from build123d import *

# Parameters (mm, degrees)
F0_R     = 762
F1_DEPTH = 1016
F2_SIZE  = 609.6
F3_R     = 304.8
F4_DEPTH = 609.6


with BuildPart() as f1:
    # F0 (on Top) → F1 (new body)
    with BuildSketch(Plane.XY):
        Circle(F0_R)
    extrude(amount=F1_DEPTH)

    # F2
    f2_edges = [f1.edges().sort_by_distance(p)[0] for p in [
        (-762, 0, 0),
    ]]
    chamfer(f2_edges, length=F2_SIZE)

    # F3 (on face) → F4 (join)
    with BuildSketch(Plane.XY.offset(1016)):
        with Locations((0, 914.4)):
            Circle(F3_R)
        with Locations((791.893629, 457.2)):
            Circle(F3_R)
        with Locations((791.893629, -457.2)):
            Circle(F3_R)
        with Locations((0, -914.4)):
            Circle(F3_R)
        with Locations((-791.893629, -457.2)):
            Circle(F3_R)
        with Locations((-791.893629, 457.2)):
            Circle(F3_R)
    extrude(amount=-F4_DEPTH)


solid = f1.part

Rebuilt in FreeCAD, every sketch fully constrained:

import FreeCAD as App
import Part
import Sketcher
from FreeCAD import Vector
Q = App.Units.Quantity


def edges_at(feature, points):
    """Names of the edges that pass closest to the given points."""
    edges = feature.Shape.Edges
    near = lambda p: min(range(len(edges)), key=lambda i: edges[i].distToShape(Part.Vertex(*p))[0])
    return sorted({f"Edge{near(p) + 1}" for p in points})

doc = App.newDocument("Part")
body = doc.addObject("PartDesign::Body", "Body")

sketch1 = body.newObject("Sketcher::SketchObject", "Sketch")
sketch1.AttachmentSupport = (doc.getObject("XY_Plane"), [""])
sketch1.MapMode = "FlatFace"
sketch1.addGeometry(Part.Circle(Vector(0, 0, 0), Vector(0, 0, 1), 762), False)
sketch1.addConstraint([
    Sketcher.Constraint("Coincident", 0, 3, -1, 1),
    Sketcher.Constraint("Diameter", 0, Q("60 in")),
])
pad1 = body.newObject("PartDesign::Pad", "Pad")
pad1.Profile = sketch1
pad1.Length = Q("40 in")
doc.recompute()

chamfer = body.newObject("PartDesign::Chamfer", "Chamfer")
chamfer.Base = (pad1, edges_at(pad1, [(-762, 0, 0)]))
chamfer.Size = Q("24 in")

sketch2 = body.newObject("Sketcher::SketchObject", "Sketch001")
sketch2.AttachmentSupport = (doc.getObject("XY_Plane"), [""])
sketch2.MapMode = "FlatFace"
sketch2.AttachmentOffset = App.Placement(Vector(0, 0, 40 * 25.4), App.Rotation())
sketch2.addGeometry([
    Part.Circle(Vector(0, 914, 0), Vector(0, 0, 1), 305),
    Part.Circle(Vector(792, 457, 0), Vector(0, 0, 1), 305),
    Part.Circle(Vector(792, -457, 0), Vector(0, 0, 1), 305),
    Part.Circle(Vector(0, -914, 0), Vector(0, 0, 1), 305),
    Part.Circle(Vector(-792, -457, 0), Vector(0, 0, 1), 305),
    Part.Circle(Vector(-792, 457, 0), Vector(0, 0, 1), 305),
], False)
sketch2.addConstraint([
    Sketcher.Constraint("Equal", 0, 1),
    Sketcher.Constraint("Equal", 1, 2),
    Sketcher.Constraint("Equal", 2, 3),
    Sketcher.Constraint("Equal", 3, 4),
    Sketcher.Constraint("Equal", 4, 5),
    Sketcher.Constraint("Symmetric", 0, 3, 3, 3, -1, 1),
    Sketcher.Constraint("Symmetric", 1, 3, 4, 3, -1, 1),
    Sketcher.Constraint("Symmetric", 2, 3, 5, 3, -1, 1),
    Sketcher.Constraint("Symmetric", 2, 3, 4, 3, -2),
    Sketcher.Constraint("PointOnObject", 0, 3, -2),
    Sketcher.Constraint("Diameter", 0, Q("24 in")),
    Sketcher.Constraint("DistanceY", -1, 1, 0, 3, Q("36 in")),
    Sketcher.Constraint("DistanceY", -1, 1, 1, 3, Q("18 in")),
    Sketcher.Constraint("DistanceX", -1, 1, 1, 3, 791.893629),
])
pad2 = body.newObject("PartDesign::Pad", "Pad001")
pad2.Profile = sketch2
pad2.Length = Q("24 in")
pad2.Reversed = True

doc.recompute()
